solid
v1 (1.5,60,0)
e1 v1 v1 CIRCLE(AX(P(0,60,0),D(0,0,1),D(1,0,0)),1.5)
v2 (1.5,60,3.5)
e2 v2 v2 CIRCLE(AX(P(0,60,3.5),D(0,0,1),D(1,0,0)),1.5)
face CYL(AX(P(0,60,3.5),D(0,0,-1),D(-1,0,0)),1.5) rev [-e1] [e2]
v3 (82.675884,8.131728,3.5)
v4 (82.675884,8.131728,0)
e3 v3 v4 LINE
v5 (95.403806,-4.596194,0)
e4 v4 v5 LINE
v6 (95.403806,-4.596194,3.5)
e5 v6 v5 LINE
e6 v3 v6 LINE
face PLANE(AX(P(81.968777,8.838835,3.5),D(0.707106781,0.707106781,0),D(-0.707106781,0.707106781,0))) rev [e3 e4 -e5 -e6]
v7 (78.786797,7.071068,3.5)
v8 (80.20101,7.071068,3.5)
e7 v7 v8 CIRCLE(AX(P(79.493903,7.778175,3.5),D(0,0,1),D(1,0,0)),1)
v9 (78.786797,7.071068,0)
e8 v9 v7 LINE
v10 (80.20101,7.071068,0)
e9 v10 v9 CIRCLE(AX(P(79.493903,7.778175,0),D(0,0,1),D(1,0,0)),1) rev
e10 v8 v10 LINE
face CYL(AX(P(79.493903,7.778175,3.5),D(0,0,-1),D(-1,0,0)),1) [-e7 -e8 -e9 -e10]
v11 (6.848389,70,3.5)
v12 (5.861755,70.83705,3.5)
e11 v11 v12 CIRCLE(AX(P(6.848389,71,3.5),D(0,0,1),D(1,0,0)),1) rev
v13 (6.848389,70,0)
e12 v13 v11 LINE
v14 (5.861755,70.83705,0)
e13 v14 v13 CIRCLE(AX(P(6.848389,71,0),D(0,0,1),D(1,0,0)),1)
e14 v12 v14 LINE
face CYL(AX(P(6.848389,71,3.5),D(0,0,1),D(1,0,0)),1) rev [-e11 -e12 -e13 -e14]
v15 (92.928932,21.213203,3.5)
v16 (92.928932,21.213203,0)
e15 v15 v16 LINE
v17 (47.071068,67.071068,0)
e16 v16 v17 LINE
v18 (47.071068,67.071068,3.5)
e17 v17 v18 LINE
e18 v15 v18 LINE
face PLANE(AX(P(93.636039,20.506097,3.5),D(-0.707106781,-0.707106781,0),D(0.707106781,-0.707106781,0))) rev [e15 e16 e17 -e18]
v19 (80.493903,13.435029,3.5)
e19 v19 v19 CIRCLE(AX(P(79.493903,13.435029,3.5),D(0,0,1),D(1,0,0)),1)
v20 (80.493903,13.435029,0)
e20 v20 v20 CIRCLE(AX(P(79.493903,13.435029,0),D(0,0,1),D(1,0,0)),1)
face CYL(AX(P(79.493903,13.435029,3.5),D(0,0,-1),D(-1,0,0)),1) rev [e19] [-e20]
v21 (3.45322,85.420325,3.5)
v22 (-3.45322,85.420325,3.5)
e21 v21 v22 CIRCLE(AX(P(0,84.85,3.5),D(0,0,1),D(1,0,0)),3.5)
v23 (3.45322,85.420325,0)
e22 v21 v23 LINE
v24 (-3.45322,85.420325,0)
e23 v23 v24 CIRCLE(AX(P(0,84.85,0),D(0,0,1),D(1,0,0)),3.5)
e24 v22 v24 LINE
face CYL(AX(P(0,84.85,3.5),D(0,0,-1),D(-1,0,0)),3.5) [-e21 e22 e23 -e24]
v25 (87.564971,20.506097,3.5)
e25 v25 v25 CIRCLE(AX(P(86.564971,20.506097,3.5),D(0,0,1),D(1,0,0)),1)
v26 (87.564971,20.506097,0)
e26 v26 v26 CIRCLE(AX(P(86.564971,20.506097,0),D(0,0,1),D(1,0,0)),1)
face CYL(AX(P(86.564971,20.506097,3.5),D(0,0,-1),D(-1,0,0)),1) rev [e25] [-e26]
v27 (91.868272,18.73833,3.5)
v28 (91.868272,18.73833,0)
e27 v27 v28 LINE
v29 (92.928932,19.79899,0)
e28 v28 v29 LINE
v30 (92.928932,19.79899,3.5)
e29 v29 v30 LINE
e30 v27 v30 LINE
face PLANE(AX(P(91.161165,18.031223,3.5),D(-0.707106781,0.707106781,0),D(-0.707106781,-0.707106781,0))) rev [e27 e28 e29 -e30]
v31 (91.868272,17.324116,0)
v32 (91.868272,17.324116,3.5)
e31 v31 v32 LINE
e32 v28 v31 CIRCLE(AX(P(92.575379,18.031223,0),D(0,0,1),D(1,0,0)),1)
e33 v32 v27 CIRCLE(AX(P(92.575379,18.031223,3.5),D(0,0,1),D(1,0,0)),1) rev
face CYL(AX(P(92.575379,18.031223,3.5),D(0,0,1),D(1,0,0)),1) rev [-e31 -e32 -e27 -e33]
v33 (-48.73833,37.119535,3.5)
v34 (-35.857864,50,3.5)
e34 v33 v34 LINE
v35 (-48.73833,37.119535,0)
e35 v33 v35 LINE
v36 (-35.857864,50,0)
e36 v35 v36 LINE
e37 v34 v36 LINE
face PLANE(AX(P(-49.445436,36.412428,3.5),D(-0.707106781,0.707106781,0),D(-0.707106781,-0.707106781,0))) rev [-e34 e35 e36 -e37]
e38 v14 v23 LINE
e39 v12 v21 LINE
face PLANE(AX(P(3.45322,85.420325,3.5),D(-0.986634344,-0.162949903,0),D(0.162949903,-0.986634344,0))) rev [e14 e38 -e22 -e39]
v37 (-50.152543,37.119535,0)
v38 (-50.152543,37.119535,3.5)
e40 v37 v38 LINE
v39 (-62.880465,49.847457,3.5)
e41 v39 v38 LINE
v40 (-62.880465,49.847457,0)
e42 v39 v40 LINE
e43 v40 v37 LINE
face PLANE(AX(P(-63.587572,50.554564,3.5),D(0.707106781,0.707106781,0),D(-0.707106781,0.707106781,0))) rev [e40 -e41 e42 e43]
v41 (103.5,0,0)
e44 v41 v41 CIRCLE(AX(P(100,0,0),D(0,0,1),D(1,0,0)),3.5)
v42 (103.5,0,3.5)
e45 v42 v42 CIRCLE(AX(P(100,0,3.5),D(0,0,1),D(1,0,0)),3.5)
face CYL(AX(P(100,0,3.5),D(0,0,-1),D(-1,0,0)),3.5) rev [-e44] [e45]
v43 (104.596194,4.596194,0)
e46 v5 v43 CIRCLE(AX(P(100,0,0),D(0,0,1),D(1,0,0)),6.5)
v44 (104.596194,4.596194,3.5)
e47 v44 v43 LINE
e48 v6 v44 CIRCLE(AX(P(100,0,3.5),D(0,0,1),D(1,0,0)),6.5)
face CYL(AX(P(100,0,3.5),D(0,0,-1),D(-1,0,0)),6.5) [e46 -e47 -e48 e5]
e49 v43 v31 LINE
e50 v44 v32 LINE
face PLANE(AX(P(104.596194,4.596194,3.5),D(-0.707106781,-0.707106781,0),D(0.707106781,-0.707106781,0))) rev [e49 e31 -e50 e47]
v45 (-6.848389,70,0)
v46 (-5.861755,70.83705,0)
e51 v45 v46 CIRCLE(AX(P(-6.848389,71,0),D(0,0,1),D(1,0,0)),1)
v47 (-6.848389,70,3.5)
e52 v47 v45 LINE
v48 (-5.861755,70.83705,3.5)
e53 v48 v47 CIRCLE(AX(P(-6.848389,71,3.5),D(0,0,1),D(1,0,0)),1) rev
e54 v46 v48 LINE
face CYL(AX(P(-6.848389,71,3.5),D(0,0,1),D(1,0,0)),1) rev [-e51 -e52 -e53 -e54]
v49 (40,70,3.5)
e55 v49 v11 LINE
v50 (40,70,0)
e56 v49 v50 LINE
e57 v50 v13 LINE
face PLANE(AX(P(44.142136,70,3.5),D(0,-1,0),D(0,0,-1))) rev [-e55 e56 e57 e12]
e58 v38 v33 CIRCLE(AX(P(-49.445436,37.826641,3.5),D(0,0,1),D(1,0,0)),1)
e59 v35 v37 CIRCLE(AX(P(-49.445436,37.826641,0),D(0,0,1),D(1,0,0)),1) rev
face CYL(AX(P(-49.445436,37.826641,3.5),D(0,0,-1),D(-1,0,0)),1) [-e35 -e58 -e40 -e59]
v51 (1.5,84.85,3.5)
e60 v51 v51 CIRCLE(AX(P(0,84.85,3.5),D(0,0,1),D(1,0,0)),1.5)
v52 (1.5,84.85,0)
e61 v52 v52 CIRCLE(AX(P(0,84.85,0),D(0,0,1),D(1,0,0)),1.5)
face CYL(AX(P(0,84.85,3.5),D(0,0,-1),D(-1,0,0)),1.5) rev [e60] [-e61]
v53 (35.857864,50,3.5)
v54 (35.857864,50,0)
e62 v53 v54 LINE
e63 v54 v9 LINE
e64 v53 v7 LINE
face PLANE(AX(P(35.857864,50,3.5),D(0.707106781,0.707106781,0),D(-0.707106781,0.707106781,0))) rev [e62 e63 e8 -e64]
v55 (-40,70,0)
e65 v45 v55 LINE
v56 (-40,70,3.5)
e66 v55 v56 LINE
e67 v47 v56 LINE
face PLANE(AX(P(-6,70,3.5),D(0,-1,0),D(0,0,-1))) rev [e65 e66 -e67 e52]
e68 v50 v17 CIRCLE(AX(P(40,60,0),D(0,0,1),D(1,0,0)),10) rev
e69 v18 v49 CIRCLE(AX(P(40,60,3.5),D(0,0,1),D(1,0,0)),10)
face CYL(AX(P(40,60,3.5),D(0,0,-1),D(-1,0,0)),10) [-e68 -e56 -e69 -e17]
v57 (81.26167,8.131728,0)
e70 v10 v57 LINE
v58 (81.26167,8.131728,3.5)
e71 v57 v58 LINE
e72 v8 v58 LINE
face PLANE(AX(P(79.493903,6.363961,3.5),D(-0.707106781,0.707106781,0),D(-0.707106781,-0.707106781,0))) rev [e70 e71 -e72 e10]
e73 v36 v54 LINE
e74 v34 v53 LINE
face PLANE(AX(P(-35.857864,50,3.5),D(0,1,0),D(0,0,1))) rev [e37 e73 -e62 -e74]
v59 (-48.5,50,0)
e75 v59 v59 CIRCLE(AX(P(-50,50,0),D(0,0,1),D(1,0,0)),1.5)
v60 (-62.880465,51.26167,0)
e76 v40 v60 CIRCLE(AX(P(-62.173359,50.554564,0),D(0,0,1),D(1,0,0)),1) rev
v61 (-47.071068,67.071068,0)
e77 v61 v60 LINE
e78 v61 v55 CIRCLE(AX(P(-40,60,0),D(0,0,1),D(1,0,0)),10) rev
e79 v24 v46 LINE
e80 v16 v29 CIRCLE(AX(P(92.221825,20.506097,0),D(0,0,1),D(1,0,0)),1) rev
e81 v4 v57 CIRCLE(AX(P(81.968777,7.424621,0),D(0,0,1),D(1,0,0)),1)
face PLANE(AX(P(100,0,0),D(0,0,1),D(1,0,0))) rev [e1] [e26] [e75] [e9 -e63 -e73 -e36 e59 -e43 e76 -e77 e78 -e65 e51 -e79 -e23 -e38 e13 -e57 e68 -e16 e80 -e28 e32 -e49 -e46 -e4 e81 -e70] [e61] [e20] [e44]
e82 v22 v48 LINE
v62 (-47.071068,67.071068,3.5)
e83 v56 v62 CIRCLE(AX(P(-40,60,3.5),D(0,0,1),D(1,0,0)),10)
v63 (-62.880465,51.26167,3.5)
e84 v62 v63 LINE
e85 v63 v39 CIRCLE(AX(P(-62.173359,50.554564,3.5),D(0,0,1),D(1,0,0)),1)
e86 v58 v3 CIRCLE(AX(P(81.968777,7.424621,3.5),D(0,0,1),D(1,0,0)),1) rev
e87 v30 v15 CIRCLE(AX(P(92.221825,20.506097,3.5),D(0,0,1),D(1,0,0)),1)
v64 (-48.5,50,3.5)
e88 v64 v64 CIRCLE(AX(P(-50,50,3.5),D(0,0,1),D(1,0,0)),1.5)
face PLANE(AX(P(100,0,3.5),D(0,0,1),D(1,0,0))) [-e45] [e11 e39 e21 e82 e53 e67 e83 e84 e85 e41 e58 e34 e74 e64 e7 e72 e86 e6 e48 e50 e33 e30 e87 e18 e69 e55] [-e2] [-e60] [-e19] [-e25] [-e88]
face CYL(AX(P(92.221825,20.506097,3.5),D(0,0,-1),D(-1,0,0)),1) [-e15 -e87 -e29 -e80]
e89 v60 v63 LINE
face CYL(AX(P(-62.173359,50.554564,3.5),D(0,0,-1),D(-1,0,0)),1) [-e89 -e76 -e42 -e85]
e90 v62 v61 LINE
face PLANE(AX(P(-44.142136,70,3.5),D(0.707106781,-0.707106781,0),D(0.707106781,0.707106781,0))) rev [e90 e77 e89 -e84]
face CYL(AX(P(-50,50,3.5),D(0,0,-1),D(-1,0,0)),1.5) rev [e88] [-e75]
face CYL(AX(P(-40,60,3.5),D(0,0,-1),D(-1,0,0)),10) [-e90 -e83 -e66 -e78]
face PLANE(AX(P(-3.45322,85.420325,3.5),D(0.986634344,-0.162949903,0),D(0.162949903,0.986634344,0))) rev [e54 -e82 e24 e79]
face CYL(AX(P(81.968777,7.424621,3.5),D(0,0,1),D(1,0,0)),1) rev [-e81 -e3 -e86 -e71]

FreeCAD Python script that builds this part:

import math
import FreeCAD as App
import Part
import Sketcher
from FreeCAD import Vector
Q = App.Units.Quantity


def edges_at(feature, points):
    """Names of the edges that pass closest to the given points."""
    edges = feature.Shape.Edges
    near = lambda p: min(range(len(edges)), key=lambda i: edges[i].distToShape(Part.Vertex(*p))[0])
    return sorted({f"Edge{near(p) + 1}" for p in points})

doc = App.newDocument("Part")
body = doc.addObject("PartDesign::Body", "Body")

sketch1 = body.newObject("Sketcher::SketchObject", "Sketch")
sketch1.AttachmentSupport = (doc.getObject("XY_Plane"), [""])
sketch1.MapMode = "FlatFace"
sketch1.addGeometry([
    Part.LineSegment(Vector(82, 8.8, 0), Vector(95.4, -4.6, 0)),
    Part.ArcOfCircle(Part.Circle(Vector(100, 0, 0), Vector(0, 0, 1), 6.5), math.radians(-135), math.radians(45)),
    Part.LineSegment(Vector(104.6, 4.6, 0), Vector(91.2, 18, 0)),
    Part.LineSegment(Vector(91.2, 18, 0), Vector(93.6, 20.5, 0)),
    Part.LineSegment(Vector(93.6, 20.5, 0), Vector(44.1, 70, 0)),
    Part.LineSegment(Vector(44.1, 70, 0), Vector(6, 70, 0)),
    Part.LineSegment(Vector(6, 70, 0), Vector(3.5, 85.4, 0)),
    Part.ArcOfCircle(Part.Circle(Vector(0, 84.8, 0), Vector(0, 0, 1), 3.5), math.radians(9), math.radians(171)),
    Part.LineSegment(Vector(-3.5, 85.4, 0), Vector(-6, 70, 0)),
    Part.LineSegment(Vector(-6, 70, 0), Vector(-44.1, 70, 0)),
    Part.LineSegment(Vector(-44.1, 70, 0), Vector(-63.6, 50.6, 0)),
    Part.LineSegment(Vector(-63.6, 50.6, 0), Vector(-49.4, 36.4, 0)),
    Part.LineSegment(Vector(-49.4, 36.4, 0), Vector(-35.9, 50, 0)),
    Part.LineSegment(Vector(-35.9, 50, 0), Vector(35.9, 50, 0)),
    Part.LineSegment(Vector(35.9, 50, 0), Vector(79.5, 6.4, 0)),
    Part.LineSegment(Vector(79.5, 6.4, 0), Vector(82, 8.8, 0)),
    Part.Circle(Vector(100, 0, 0), Vector(0, 0, 1), 3.5),
    Part.Circle(Vector(79.5, 13.4, 0), Vector(0, 0, 1), 1),
    Part.Circle(Vector(86.6, 20.5, 0), Vector(0, 0, 1), 1),
    Part.Circle(Vector(-50, 50, 0), Vector(0, 0, 1), 1.5),
    Part.Circle(Vector(0, 60, 0), Vector(0, 0, 1), 1.5),
    Part.Circle(Vector(0, 84.8, 0), Vector(0, 0, 1), 1.5),
], False)
sketch1.addConstraint([
    Sketcher.Constraint("Tangent", 0, 2, 1, 1),
    Sketcher.Constraint("Tangent", 1, 2, 2, 1),
    Sketcher.Constraint("Coincident", 2, 2, 3, 1),
    Sketcher.Constraint("Coincident", 3, 2, 4, 1),
    Sketcher.Constraint("Coincident", 4, 2, 5, 1),
    Sketcher.Constraint("Coincident", 5, 2, 6, 1),
    Sketcher.Constraint("Tangent", 6, 2, 7, 1),
    Sketcher.Constraint("Tangent", 7, 2, 8, 1),
    Sketcher.Constraint("Coincident", 8, 2, 9, 1),
    Sketcher.Constraint("Coincident", 9, 2, 10, 1),
    Sketcher.Constraint("Coincident", 10, 2, 11, 1),
    Sketcher.Constraint("Coincident", 11, 2, 12, 1),
    Sketcher.Constraint("Coincident", 12, 2, 13, 1),
    Sketcher.Constraint("Coincident", 13, 2, 14, 1),
    Sketcher.Constraint("Coincident", 14, 2, 15, 1),
    Sketcher.Constraint("Coincident", 15, 2, 0, 1),
    Sketcher.Constraint("Horizontal", 5),
    Sketcher.Constraint("Horizontal", 9),
    Sketcher.Constraint("Horizontal", 13),
    Sketcher.Constraint("Coincident", 16, 3, 1, 3),
    Sketcher.Constraint("Coincident", 21, 3, 7, 3),
    Sketcher.Constraint("Equal", 7, 16),
    Sketcher.Constraint("Equal", 17, 18),
    Sketcher.Constraint("Equal", 19, 20),
    Sketcher.Constraint("Equal", 20, 21),
    Sketcher.Constraint("Symmetric", 6, 2, 7, 2, -2),
    Sketcher.Constraint("Symmetric", 4, 2, 9, 2, -2),
    Sketcher.Constraint("PointOnObject", 1, 3, -1),
    Sketcher.Constraint("PointOnObject", 20, 3, -2),
    Sketcher.Constraint("Parallel", 0, 2),
    Sketcher.Constraint("Perpendicular", 2, 3),
    Sketcher.Constraint("Perpendicular", 3, 4),
    Sketcher.Constraint("Perpendicular", 4, 10),
    Sketcher.Constraint("Perpendicular", 10, 11),
    Sketcher.Constraint("Perpendicular", 11, 12),
    Sketcher.Constraint("Perpendicular", 12, 14),
    Sketcher.Constraint("Perpendicular", 14, 15),
    Sketcher.Constraint("Horizontal", 18, 3, 3, 2),
    Sketcher.Constraint("Horizontal", 19, 3, 12, 2),
    Sketcher.Constraint("Vertical", 17, 3, 14, 2),
    Sketcher.Constraint("Equal", 0, 2),
    Sketcher.Constraint("Equal", 3, 15),
    Sketcher.Constraint("Diameter", 16, 7.0),
    Sketcher.Constraint("Diameter", 17, 2.0),
    Sketcher.Constraint("Diameter", 19, 3.0),
    Sketcher.Constraint("Radius", 1, 6.5),
    Sketcher.Constraint("Angle", 0, Q("-45 deg")),
    Sketcher.Constraint("Distance", 0, 19.0),
    Sketcher.Constraint("Distance", 11, 20.0),
    Sketcher.Constraint("DistanceX", -1, 1, 1, 3, 100.0),
    Sketcher.Constraint("DistanceX", 19, 3, -1, 1, 50.0),
    Sketcher.Constraint("DistanceY", -1, 1, 19, 3, 50.0),
    Sketcher.Constraint("DistanceY", -1, 1, 20, 3, 60.0),
    Sketcher.Constraint("DistanceY", -1, 1, 4, 2, 70.0),
    Sketcher.Constraint("DistanceX", -1, 1, 5, 2, 6.0),
    Sketcher.Constraint("Distance", 3, 3.5),
    Sketcher.Constraint("Distance", 10, 27.5),
    Sketcher.Constraint("DistanceY", -1, 1, 7, 3, 84.85),
    Sketcher.Constraint("DistanceY", -1, 1, 17, 3, 13.435029),
    Sketcher.Constraint("DistanceX", -1, 1, 18, 3, 86.564971),
])
pad1 = body.newObject("PartDesign::Pad", "Pad")
pad1.Profile = sketch1
pad1.Length = 3.5
doc.recompute()

fillet = body.newObject("PartDesign::Fillet", "Fillet")
fillet.Base = (pad1, edges_at(pad1, [(-44.142, 70, 1.75), (44.142, 70, 1.75)]))
fillet.Radius = 10
doc.recompute()

fillet2 = body.newObject("PartDesign::Fillet", "Fillet001")
fillet2.Base = (fillet, edges_at(fillet, [(93.636, 20.506, 1.75), (91.161, 18.031, 1.75)]))
fillet2.Radius = 1
doc.recompute()

fillet3 = body.newObject("PartDesign::Fillet", "Fillet002")
fillet3.Base = (fillet2, edges_at(fillet2, [
    (-49.445, 36.412, 1.75),
    (-63.588, 50.555, 1.75),
    (81.969, 8.839, 1.75),
    (79.494, 6.364, 1.75),
]))
fillet3.Radius = 1
doc.recompute()

fillet4 = body.newObject("PartDesign::Fillet", "Fillet003")
fillet4.Base = (fillet3, edges_at(fillet3, [(-6, 70, 1.75), (6, 70, 1.75)]))
fillet4.Radius = 1

doc.recompute()
